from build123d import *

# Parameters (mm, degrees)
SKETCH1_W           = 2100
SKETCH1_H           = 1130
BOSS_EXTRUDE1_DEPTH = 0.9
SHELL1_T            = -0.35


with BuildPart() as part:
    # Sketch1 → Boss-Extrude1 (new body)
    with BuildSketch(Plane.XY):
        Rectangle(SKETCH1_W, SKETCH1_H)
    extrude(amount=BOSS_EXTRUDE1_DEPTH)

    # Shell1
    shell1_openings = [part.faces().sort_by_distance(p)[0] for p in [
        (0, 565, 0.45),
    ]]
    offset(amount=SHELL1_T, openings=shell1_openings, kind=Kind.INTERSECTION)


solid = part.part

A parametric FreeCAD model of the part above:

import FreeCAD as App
import Part
import Sketcher

V = App.Vector
Q = App.Units.Quantity


def faces_at(feature, points):
    """Names of the faces that lie closest to the given points."""
    faces = feature.Shape.Faces
    near = lambda p: min(range(len(faces)), key=lambda i: faces[i].distToShape(Part.Vertex(*p))[0])
    return sorted({f"Face{near(p) + 1}" for p in points})


def add_polygon(sketch, points):
    """Adds a closed chain of lines whose ends are joined by coincident constraints."""
    first, n = sketch.GeometryCount, len(points)
    for a, b in zip(points, points[1:] + points[:1]):
        sketch.addGeometry(Part.LineSegment(App.Vector(*a, 0), App.Vector(*b, 0)), False)
    for i in range(n):
        sketch.addConstraint(Sketcher.Constraint("Coincident", first + i, 2, first + (i + 1) % n, 1))

doc = App.newDocument("Part")
body = doc.addObject("PartDesign::Body", "Body")

sketch1 = doc.addObject("Sketcher::SketchObject", "Sketch")
body.addObject(sketch1)
sketch1.AttachmentSupport = (doc.XY_Plane, [""])
sketch1.MapMode = "FlatFace"
add_polygon(sketch1, [(-1050, 565), (-1050, -565), (1050, -565), (1050, 565)])
sketch1.addConstraint(Sketcher.Constraint("Vertical", 0))
sketch1.addConstraint(Sketcher.Constraint("Horizontal", 1))
sketch1.addConstraint(Sketcher.Constraint("Vertical", 2))
sketch1.addConstraint(Sketcher.Constraint("Horizontal", 3))
sketch1.addConstraint(Sketcher.Constraint("Symmetric", 0, 2, 2, 2, -1, 1))
sketch1.addConstraint(Sketcher.Constraint("DistanceX", 1, 1, 1, 2, Q("2100 mm")))
sketch1.addConstraint(Sketcher.Constraint("DistanceY", 0, 2, 0, 1, Q("1130 mm")))
pad1 = doc.addObject("PartDesign::Pad", "Pad")
body.addObject(pad1)
pad1.Profile = sketch1
pad1.Length = 0.9
doc.recompute()

thickness = doc.addObject("PartDesign::Thickness", "Thickness")
body.addObject(thickness)
thickness.Base = (pad1, faces_at(pad1, [(0, 565, 0.45)]))
thickness.Value = 0.35
thickness.Reversed = True
thickness.Join = "Intersection"

doc.recompute()
